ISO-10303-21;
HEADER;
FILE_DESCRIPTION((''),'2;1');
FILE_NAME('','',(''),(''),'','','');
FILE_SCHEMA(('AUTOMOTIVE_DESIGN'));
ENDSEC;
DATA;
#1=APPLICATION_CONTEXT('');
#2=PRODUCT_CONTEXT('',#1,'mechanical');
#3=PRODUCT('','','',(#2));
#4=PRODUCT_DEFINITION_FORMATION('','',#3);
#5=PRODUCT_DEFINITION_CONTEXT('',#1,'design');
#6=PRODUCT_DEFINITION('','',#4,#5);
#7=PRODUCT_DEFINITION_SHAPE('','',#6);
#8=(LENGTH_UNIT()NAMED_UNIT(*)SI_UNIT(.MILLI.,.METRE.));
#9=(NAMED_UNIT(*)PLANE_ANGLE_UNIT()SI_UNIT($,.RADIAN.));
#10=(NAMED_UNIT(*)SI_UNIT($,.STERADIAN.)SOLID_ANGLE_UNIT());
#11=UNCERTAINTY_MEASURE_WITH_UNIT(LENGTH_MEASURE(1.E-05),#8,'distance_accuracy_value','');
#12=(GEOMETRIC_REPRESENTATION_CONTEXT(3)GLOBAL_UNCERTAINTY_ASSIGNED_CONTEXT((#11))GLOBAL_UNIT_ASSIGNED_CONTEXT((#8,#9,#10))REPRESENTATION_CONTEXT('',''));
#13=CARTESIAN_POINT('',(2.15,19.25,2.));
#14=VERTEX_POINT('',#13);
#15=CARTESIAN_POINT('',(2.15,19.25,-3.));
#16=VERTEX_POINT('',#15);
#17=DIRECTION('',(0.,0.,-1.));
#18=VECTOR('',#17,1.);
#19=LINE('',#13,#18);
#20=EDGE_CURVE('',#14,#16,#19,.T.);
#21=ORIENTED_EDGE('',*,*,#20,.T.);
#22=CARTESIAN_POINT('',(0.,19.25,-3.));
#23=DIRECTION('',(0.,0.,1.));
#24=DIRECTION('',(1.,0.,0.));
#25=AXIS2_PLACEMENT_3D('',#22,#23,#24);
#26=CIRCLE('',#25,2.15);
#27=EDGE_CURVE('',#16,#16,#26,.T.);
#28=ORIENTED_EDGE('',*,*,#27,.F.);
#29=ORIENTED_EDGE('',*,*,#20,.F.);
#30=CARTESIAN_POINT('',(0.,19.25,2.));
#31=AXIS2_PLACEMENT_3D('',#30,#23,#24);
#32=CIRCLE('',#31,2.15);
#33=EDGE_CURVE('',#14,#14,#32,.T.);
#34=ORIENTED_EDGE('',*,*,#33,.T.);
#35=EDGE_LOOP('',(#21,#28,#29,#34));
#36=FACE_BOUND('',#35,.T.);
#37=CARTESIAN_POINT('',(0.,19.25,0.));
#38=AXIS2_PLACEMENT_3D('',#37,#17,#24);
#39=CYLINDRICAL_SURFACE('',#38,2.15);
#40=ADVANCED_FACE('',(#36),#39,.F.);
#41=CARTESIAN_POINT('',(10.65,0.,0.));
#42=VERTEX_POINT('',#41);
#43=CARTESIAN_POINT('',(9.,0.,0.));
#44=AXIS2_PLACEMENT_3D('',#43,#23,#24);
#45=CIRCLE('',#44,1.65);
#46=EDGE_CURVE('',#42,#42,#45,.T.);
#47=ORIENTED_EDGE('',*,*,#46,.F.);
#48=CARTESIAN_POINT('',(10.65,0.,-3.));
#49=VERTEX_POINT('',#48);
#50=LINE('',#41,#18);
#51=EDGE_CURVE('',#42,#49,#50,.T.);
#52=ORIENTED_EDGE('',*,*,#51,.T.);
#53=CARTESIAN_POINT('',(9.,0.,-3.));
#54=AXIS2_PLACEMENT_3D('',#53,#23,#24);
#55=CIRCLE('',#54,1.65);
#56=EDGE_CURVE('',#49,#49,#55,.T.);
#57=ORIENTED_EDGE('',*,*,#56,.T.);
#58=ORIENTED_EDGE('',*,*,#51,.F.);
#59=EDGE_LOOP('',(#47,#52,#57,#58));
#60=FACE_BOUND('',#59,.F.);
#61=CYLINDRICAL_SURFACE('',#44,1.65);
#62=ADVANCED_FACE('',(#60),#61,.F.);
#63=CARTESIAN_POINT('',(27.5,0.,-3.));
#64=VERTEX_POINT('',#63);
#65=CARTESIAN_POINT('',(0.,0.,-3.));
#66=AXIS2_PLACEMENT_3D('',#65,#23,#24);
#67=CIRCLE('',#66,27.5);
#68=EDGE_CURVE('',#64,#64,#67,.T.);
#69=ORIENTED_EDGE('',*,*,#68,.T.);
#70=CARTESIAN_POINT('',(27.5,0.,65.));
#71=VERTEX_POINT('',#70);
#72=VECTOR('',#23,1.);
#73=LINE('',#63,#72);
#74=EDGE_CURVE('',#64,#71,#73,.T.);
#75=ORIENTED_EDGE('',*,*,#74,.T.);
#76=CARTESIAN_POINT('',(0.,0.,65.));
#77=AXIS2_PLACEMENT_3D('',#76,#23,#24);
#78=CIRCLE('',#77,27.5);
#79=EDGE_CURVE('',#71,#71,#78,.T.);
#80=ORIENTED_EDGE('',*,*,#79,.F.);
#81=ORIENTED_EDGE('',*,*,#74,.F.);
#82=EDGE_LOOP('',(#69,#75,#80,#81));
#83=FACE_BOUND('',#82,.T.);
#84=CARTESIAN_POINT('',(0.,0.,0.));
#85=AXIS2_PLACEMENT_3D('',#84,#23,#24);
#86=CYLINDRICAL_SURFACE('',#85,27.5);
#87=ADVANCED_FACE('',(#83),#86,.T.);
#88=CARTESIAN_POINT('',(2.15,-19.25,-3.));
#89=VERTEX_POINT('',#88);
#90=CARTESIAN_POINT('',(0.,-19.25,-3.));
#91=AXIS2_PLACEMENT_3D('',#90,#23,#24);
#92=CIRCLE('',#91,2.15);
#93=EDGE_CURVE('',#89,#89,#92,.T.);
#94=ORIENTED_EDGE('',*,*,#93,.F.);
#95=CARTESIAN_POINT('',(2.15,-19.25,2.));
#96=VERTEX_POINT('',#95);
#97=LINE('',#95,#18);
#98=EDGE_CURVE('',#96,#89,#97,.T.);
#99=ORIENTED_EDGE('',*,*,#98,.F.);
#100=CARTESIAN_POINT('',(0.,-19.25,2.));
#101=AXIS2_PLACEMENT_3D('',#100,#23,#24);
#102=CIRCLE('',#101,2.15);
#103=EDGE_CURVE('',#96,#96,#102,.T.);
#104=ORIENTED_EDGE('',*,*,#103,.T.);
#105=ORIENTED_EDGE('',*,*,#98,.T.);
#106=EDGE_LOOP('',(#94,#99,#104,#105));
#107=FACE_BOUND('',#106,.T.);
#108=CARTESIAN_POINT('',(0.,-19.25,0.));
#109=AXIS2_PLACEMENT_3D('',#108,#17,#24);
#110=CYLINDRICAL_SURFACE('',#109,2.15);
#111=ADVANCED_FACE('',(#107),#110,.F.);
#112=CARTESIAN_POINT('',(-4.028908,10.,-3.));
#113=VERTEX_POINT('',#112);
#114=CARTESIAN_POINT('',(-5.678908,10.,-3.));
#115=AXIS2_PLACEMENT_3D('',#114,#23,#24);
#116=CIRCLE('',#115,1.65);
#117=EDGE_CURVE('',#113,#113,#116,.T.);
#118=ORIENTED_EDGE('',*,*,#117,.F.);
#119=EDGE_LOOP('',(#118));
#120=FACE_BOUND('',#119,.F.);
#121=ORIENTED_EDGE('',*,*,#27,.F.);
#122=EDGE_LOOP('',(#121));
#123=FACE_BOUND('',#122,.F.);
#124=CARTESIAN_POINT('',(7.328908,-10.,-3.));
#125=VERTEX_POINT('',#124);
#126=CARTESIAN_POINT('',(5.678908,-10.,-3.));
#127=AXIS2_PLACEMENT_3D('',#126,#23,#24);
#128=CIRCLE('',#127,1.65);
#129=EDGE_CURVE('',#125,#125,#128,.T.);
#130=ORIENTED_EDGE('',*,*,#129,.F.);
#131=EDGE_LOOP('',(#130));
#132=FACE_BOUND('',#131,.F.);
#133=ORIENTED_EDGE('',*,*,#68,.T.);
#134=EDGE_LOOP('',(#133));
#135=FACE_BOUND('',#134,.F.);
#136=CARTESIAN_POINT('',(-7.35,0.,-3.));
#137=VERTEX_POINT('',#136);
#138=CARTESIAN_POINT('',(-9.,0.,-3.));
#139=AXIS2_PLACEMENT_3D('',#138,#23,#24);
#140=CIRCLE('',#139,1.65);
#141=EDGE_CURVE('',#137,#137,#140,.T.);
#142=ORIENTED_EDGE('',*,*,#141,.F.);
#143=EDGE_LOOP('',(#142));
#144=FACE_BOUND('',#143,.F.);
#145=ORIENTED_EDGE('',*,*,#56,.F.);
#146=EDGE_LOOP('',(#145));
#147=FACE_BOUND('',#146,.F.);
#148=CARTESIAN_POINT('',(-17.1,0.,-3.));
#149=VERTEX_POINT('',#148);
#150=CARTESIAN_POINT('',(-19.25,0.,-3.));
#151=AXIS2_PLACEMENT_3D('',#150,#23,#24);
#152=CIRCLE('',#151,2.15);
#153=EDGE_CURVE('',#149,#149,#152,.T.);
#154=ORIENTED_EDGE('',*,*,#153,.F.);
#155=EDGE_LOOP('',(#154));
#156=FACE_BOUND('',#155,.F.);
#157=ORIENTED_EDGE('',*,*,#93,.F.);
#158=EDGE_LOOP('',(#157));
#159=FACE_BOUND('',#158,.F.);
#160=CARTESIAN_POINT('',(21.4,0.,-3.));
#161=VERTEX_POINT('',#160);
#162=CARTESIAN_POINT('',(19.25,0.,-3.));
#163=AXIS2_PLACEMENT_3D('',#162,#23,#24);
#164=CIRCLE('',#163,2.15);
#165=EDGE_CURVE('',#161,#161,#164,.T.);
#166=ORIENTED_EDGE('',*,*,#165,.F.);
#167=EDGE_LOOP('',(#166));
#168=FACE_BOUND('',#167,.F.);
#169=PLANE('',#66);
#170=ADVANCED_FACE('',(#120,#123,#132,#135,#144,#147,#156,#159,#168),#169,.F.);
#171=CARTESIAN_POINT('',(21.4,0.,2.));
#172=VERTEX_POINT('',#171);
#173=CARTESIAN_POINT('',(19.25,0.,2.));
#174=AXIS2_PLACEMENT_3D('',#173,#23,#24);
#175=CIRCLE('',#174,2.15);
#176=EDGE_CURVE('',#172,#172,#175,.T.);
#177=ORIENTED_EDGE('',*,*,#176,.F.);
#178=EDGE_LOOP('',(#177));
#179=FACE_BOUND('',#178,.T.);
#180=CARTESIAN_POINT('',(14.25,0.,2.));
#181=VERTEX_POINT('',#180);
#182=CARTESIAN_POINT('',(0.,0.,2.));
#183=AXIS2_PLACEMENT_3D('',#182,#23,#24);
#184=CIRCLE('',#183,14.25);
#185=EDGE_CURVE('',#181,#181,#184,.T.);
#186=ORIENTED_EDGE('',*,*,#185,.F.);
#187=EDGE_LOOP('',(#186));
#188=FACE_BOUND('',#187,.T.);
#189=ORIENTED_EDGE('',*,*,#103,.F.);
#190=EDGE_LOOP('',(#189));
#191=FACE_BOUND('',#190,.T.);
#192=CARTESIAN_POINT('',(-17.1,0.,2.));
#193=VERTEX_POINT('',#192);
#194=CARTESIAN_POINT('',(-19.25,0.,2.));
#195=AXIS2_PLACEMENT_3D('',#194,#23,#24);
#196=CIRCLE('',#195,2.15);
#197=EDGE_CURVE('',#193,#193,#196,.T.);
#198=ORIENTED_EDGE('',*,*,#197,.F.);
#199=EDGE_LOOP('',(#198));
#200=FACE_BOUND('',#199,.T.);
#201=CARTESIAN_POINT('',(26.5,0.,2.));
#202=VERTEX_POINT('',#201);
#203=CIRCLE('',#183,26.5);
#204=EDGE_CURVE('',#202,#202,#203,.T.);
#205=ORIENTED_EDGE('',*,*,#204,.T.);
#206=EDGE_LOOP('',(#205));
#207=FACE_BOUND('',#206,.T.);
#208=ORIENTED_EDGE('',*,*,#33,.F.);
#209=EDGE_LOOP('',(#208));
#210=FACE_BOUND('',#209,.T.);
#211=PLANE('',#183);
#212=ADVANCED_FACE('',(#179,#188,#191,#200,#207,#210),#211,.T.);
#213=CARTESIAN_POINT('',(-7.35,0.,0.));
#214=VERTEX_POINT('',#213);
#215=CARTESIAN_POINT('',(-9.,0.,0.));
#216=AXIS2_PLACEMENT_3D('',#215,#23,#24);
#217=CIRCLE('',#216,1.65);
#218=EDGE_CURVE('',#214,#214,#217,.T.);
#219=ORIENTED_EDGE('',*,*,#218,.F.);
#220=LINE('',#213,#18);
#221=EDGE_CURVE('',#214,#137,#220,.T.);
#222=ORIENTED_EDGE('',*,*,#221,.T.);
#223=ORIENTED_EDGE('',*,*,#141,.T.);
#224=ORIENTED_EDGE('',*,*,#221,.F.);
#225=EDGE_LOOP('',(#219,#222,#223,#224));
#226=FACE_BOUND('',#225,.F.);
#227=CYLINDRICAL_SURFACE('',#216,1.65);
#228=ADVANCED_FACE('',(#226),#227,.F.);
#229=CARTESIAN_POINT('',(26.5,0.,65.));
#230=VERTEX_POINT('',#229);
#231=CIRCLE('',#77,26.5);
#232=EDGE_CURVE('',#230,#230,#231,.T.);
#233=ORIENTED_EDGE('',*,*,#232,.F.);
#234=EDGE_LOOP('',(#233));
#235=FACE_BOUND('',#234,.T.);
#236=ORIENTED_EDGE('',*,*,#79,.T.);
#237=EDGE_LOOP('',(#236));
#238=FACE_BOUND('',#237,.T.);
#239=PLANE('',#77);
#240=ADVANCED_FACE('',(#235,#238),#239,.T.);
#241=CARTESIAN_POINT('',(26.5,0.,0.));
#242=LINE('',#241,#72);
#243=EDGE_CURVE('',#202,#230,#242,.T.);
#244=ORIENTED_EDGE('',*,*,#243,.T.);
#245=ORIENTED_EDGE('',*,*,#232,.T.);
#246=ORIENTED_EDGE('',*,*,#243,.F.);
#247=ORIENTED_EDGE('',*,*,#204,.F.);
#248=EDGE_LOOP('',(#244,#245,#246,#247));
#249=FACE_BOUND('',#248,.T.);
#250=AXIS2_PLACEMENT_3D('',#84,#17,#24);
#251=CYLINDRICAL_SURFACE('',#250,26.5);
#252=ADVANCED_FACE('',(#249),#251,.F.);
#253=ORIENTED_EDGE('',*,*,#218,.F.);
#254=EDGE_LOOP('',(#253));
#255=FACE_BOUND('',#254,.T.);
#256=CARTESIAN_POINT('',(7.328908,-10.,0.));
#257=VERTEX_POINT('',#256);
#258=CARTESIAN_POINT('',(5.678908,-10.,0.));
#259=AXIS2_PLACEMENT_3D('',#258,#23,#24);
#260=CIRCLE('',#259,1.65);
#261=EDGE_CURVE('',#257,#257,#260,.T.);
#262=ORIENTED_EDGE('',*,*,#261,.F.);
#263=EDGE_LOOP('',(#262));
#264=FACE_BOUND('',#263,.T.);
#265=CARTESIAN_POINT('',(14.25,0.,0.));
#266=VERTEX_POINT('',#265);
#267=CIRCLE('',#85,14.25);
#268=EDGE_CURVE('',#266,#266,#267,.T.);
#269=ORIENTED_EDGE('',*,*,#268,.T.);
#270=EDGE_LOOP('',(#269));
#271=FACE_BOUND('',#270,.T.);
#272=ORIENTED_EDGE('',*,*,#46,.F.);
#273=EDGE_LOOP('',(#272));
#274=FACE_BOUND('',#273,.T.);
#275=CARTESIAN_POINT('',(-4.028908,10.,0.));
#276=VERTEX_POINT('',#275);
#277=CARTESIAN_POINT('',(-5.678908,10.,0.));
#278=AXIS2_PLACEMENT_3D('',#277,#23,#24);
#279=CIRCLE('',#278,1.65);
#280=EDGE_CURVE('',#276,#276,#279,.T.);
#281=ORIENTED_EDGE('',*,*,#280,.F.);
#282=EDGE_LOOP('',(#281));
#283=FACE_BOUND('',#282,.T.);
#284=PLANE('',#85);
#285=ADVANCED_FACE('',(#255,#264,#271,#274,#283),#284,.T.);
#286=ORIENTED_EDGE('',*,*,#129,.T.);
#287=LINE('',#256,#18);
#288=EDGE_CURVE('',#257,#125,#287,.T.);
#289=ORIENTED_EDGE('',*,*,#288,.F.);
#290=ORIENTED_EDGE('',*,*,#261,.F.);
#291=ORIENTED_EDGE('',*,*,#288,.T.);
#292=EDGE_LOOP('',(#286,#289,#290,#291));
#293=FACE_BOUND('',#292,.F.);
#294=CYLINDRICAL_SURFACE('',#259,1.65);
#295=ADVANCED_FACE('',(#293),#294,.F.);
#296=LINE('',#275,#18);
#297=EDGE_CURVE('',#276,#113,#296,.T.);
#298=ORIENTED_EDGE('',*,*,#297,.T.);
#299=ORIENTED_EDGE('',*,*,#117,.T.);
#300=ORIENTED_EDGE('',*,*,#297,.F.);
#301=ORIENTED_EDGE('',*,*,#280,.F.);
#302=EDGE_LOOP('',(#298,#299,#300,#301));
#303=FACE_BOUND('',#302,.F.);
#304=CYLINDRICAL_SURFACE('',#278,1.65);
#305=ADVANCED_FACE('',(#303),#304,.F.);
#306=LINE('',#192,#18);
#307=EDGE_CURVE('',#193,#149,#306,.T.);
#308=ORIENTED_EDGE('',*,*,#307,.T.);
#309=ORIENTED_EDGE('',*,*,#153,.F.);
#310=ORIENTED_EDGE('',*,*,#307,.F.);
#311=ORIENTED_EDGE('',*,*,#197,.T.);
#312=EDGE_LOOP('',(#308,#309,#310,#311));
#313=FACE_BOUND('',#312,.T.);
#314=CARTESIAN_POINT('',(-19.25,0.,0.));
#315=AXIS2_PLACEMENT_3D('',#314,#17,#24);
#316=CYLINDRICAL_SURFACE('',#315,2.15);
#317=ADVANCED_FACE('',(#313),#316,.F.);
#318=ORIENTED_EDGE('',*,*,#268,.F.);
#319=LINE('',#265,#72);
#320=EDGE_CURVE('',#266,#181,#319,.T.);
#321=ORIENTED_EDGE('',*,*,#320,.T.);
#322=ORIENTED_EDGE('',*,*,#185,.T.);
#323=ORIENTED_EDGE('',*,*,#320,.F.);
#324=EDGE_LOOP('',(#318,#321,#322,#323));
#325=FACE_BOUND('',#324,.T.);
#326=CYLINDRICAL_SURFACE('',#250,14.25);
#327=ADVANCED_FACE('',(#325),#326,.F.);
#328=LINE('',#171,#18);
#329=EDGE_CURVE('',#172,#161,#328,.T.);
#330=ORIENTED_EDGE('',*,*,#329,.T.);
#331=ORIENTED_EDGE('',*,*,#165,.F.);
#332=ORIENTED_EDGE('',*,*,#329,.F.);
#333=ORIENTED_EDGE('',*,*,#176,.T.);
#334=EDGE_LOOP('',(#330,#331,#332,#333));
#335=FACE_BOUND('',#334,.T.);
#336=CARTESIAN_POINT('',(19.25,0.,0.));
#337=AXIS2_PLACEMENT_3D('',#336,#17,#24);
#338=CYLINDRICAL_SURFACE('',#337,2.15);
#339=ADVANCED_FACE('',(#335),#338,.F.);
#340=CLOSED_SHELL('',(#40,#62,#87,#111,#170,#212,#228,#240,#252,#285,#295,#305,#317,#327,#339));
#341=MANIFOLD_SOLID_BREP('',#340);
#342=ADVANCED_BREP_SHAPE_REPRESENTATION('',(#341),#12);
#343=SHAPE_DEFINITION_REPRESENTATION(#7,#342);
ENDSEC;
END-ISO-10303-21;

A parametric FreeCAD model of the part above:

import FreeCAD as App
import Part
import Sketcher
from FreeCAD import Vector

doc = App.newDocument("Part")
body = doc.addObject("PartDesign::Body", "Body")

sketch1 = body.newObject("Sketcher::SketchObject", "Sketch")
sketch1.AttachmentSupport = (doc.getObject("XY_Plane"), [""])
sketch1.MapMode = "FlatFace"
sketch1.addGeometry(Part.Circle(Vector(0, 0, 0), Vector(0, 0, 1), 28), False)
sketch1.addGeometry(Part.Circle(Vector(0, 0, 0), Vector(0, 0, 1), 26), False)
sketch1.addConstraint(Sketcher.Constraint("Coincident", 0, 3, -1, 1))
sketch1.addConstraint(Sketcher.Constraint("Coincident", 1, 3, -1, 1))
sketch1.addConstraint(Sketcher.Constraint("Diameter", 0, 55.0))
sketch1.addConstraint(Sketcher.Constraint("Diameter", 1, 53.0))
pad1 = body.newObject("PartDesign::Pad", "Pad")
pad1.Profile = sketch1
pad1.Length = 65

sketch2 = body.newObject("Sketcher::SketchObject", "Sketch001")
sketch2.AttachmentSupport = (doc.getObject("XY_Plane"), [""])
sketch2.MapMode = "FlatFace"
sketch2.addGeometry(Part.Circle(Vector(0, 0, 0), Vector(0, 0, 1), 27.5), False)
sketch2.addGeometry(Part.Circle(Vector(0, -19.2, 0), Vector(0, 0, 1), 2.1), False)
sketch2.addGeometry(Part.Circle(Vector(5.7, -10, 0), Vector(0, 0, 1), 1.6), False)
sketch2.addGeometry(Part.Circle(Vector(-19.2, 0, 0), Vector(0, 0, 1), 2.1), False)
sketch2.addGeometry(Part.Circle(Vector(-9, 0, 0), Vector(0, 0, 1), 1.6), False)
sketch2.addGeometry(Part.Circle(Vector(-5.7, 10, 0), Vector(0, 0, 1), 1.6), False)
sketch2.addGeometry(Part.Circle(Vector(9, 0, 0), Vector(0, 0, 1), 1.6), False)
sketch2.addGeometry(Part.Circle(Vector(19.2, 0, 0), Vector(0, 0, 1), 2.1), False)
sketch2.addGeometry(Part.Circle(Vector(0, 19.2, 0), Vector(0, 0, 1), 2.1), False)
sketch2.addConstraint(Sketcher.Constraint("Coincident", 0, 3, -1, 1))
sketch2.addConstraint(Sketcher.Constraint("Equal", 1, 3))
sketch2.addConstraint(Sketcher.Constraint("Equal", 2, 4))
sketch2.addConstraint(Sketcher.Constraint("Equal", 4, 5))
sketch2.addConstraint(Sketcher.Constraint("Equal", 5, 6))
sketch2.addConstraint(Sketcher.Constraint("Equal", 3, 7))
sketch2.addConstraint(Sketcher.Constraint("Equal", 7, 8))
sketch2.addConstraint(Sketcher.Constraint("Symmetric", 2, 3, 5, 3, -1, 1))
sketch2.addConstraint(Sketcher.Constraint("Symmetric", 4, 3, 6, 3, -1, 1))
sketch2.addConstraint(Sketcher.Constraint("Symmetric", 3, 3, 7, 3, -1, 1))
sketch2.addConstraint(Sketcher.Constraint("Symmetric", 1, 3, 8, 3, -1, 1))
sketch2.addConstraint(Sketcher.Constraint("PointOnObject", 1, 3, -2))
sketch2.addConstraint(Sketcher.Constraint("PointOnObject", 3, 3, -1))
sketch2.addConstraint(Sketcher.Constraint("PointOnObject", 4, 3, -1))
sketch2.addConstraint(Sketcher.Constraint("Diameter", 0, 55.0))
sketch2.addConstraint(Sketcher.Constraint("Diameter", 1, 4.3))
sketch2.addConstraint(Sketcher.Constraint("Diameter", 2, 3.3))
sketch2.addConstraint(Sketcher.Constraint("DistanceY", 2, 3, -1, 1, 10.0))
sketch2.addConstraint(Sketcher.Constraint("DistanceX", 4, 3, -1, 1, 9.0))
sketch2.addConstraint(Sketcher.Constraint("DistanceY", 1, 3, -1, 1, 19.25))
sketch2.addConstraint(Sketcher.Constraint("DistanceX", 3, 3, -1, 1, 19.25))
sketch2.addConstraint(Sketcher.Constraint("DistanceX", 3, 3, 2, 3, 24.928908))
pad2 = body.newObject("PartDesign::Pad", "Pad001")
pad2.Profile = sketch2
pad2.Length = 3
pad2.Reversed = True

sketch3 = body.newObject("Sketcher::SketchObject", "Sketch002")
sketch3.AttachmentSupport = (doc.getObject("XY_Plane"), [""])
sketch3.MapMode = "FlatFace"
sketch3.addGeometry(Part.Circle(Vector(0, 0, 0), Vector(0, 0, 1), 26.5), False)
sketch3.addGeometry(Part.Circle(Vector(0, -19.2, 0), Vector(0, 0, 1), 2.1), False)
sketch3.addGeometry(Part.Circle(Vector(-19.2, 0, 0), Vector(0, 0, 1), 2.1), False)
sketch3.addGeometry(Part.Circle(Vector(0, 0, 0), Vector(0, 0, 1), 14.2), False)
sketch3.addGeometry(Part.Circle(Vector(19.2, 0, 0), Vector(0, 0, 1), 2.1), False)
sketch3.addGeometry(Part.Circle(Vector(0, 19.2, 0), Vector(0, 0, 1), 2.1), False)
sketch3.addConstraint(Sketcher.Constraint("Coincident", 0, 3, -1, 1))
sketch3.addConstraint(Sketcher.Constraint("Coincident", 3, 3, -1, 1))
sketch3.addConstraint(Sketcher.Constraint("Equal", 1, 2))
sketch3.addConstraint(Sketcher.Constraint("Equal", 2, 4))
sketch3.addConstraint(Sketcher.Constraint("Equal", 4, 5))
sketch3.addConstraint(Sketcher.Constraint("Symmetric", 2, 3, 4, 3, -1, 1))
sketch3.addConstraint(Sketcher.Constraint("Symmetric", 1, 3, 5, 3, -1, 1))
sketch3.addConstraint(Sketcher.Constraint("PointOnObject", 1, 3, -2))
sketch3.addConstraint(Sketcher.Constraint("PointOnObject", 2, 3, -1))
sketch3.addConstraint(Sketcher.Constraint("Diameter", 0, 53.0))
sketch3.addConstraint(Sketcher.Constraint("Diameter", 1, 4.3))
sketch3.addConstraint(Sketcher.Constraint("Diameter", 3, 28.5))
sketch3.addConstraint(Sketcher.Constraint("DistanceX", 2, 3, 4, 3, 38.5))
sketch3.addConstraint(Sketcher.Constraint("DistanceY", 1, 3, 5, 3, 38.5))
pad3 = body.newObject("PartDesign::Pad", "Pad002")
pad3.Profile = sketch3
pad3.Length = 2

doc.recompute()
